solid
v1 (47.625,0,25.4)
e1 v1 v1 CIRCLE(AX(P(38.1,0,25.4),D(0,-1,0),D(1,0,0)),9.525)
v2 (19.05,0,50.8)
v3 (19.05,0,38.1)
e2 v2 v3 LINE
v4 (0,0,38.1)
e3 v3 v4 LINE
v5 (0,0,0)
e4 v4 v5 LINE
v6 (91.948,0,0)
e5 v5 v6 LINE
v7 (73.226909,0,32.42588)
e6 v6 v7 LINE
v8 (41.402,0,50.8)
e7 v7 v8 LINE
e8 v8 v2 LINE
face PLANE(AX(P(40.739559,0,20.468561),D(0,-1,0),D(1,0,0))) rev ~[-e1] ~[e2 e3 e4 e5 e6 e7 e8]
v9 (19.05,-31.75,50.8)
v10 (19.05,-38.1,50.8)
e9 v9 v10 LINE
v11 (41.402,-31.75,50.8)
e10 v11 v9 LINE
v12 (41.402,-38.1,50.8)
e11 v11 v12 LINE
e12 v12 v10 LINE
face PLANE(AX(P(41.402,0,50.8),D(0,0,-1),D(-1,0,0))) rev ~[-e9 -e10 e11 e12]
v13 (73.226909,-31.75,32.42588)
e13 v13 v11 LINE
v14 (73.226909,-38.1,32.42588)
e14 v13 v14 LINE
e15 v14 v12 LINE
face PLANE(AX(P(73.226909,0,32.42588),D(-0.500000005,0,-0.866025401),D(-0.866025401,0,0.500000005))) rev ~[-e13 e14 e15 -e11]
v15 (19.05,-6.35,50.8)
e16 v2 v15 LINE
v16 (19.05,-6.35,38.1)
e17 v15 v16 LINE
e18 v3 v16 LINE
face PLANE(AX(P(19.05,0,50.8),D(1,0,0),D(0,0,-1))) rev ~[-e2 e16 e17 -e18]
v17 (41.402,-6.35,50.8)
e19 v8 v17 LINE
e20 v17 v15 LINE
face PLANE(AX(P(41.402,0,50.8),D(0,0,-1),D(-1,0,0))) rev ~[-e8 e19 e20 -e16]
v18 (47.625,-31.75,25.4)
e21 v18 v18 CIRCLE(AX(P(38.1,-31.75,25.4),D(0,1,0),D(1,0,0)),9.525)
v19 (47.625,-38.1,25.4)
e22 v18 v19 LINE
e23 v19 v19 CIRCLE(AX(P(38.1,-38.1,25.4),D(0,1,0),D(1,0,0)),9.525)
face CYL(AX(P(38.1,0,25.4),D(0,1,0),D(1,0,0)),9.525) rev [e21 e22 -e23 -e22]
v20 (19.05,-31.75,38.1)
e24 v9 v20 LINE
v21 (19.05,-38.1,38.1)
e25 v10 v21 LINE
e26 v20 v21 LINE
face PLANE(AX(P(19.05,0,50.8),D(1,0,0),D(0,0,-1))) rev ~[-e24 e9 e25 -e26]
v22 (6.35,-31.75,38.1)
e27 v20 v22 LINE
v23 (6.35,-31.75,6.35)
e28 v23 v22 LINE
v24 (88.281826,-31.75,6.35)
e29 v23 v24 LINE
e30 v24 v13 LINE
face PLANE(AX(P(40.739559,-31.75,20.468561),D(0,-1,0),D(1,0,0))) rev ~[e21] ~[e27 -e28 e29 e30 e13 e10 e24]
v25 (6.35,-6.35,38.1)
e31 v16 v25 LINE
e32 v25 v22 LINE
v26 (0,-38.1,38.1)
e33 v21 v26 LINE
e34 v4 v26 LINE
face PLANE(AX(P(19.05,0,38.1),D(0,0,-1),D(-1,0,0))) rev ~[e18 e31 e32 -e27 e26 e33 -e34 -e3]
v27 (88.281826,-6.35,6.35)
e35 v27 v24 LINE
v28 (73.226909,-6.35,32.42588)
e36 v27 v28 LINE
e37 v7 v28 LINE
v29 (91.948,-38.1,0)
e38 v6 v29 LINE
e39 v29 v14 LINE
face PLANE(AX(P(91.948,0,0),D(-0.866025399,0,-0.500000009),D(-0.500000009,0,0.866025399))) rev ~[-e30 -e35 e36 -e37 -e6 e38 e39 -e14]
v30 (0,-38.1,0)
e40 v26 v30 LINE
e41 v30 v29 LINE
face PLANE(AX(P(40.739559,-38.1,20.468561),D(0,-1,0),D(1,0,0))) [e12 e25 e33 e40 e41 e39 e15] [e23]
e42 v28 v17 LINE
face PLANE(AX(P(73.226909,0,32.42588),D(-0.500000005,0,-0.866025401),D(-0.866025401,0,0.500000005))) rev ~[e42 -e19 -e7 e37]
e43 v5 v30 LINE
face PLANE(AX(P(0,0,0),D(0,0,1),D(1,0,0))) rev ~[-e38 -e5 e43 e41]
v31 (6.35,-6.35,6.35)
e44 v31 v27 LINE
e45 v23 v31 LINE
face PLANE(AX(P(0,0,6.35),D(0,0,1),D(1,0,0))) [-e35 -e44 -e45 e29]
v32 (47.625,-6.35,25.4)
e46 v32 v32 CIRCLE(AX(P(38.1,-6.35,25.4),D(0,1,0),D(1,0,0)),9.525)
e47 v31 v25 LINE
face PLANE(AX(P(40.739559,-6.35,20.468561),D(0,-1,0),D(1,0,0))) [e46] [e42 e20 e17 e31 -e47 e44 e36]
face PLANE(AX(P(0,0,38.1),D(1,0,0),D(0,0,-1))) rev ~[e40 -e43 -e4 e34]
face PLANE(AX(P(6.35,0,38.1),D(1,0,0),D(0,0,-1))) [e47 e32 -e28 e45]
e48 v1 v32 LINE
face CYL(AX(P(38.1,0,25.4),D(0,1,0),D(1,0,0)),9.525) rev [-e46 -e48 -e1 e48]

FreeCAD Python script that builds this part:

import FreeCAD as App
import Part
import Sketcher

V = App.Vector
Q = App.Units.Quantity


def faces_at(feature, points):
    """Names of the faces that lie closest to the given points."""
    faces = feature.Shape.Faces
    near = lambda p: min(range(len(faces)), key=lambda i: faces[i].distToShape(Part.Vertex(*p))[0])
    return sorted({f"Face{near(p) + 1}" for p in points})


def add_polygon(sketch, points):
    """Adds a closed chain of lines whose ends are joined by coincident constraints."""
    first, n = sketch.GeometryCount, len(points)
    for a, b in zip(points, points[1:] + points[:1]):
        sketch.addGeometry(Part.LineSegment(App.Vector(*a, 0), App.Vector(*b, 0)), False)
    for i in range(n):
        sketch.addConstraint(Sketcher.Constraint("Coincident", first + i, 2, first + (i + 1) % n, 1))

doc = App.newDocument("Part")
body = doc.addObject("PartDesign::Body", "Body")

# Sketch on XZ plane
sketch1 = body.newObject("Sketcher::SketchObject", "Sketch")
sketch1.AttachmentSupport = (doc.getObject("XZ_Plane"), [""])
sketch1.MapMode = "FlatFace"
add_polygon(sketch1, [(0, 0), (91.948, 0), (73.226909, 32.42588), (41.402, 50.8), (19.05, 50.8), (19.05, 38.1), (0, 38.1)])  # lines 0-6
sketch1.addConstraint([
    Sketcher.Constraint("Horizontal", 0),
    Sketcher.Constraint("Horizontal", 3),
    Sketcher.Constraint("Vertical", 4),
    Sketcher.Constraint("Horizontal", 5),
    Sketcher.Constraint("Vertical", 6),
    Sketcher.Constraint("Coincident", 6, 2, -1, 1),
    Sketcher.Constraint("DistanceY", 4, 2, 4, 1, Q("0.5 in")),
    Sketcher.Constraint("DistanceY", 6, 2, 6, 1, Q("1.5 in")),
    Sketcher.Constraint("Angle", 1, Q("120.000001 deg")),
    Sketcher.Constraint("Angle", 2, Q("150 deg")),
    Sketcher.Constraint("DistanceX", 0, 1, 0, 2, Q("3.62 in")),
    Sketcher.Constraint("DistanceX", 3, 2, 3, 1, Q("0.88 in")),
    Sketcher.Constraint("DistanceX", 5, 2, 5, 1, Q("0.75 in")),
])
pad1 = body.newObject("PartDesign::Pad", "Pad")
pad1.Profile = sketch1
pad1.Length = Q("1.5 in")
doc.recompute()

thickness = body.newObject("PartDesign::Thickness", "Thickness")
thickness.Base = (pad1, faces_at(pad1, [
    (82.587, -19.05, 16.213),
    (19.05, -19.05, 44.45),
    (9.525, -19.05, 38.1),
    (30.226, -19.05, 50.8),
    (57.314, -19.05, 41.613),
]))
thickness.Value = Q("0.25 in")
thickness.Reversed = True
thickness.Join = "Arc"

# Sketch on XZ plane
sketch2 = body.newObject("Sketcher::SketchObject", "Sketch001")
sketch2.AttachmentSupport = (doc.getObject("XZ_Plane"), [""])
sketch2.MapMode = "FlatFace"
sketch2.addGeometry(Part.Circle(V(38.1, 25.4, 0), V(0, 0, 1), 9.525), False)
sketch2.addConstraint([
    Sketcher.Constraint("Diameter", 0, Q("0.75 in")),
    Sketcher.Constraint("DistanceY", -1, 1, 0, 3, Q("1 in")),
    Sketcher.Constraint("DistanceX", -1, 1, 0, 3, Q("1.5 in")),
])
pocket1 = body.newObject("PartDesign::Pocket", "Pocket")
pocket1.Profile = sketch2
pocket1.Type = "ThroughAll"
pocket1.Reversed = True

doc.recompute()
